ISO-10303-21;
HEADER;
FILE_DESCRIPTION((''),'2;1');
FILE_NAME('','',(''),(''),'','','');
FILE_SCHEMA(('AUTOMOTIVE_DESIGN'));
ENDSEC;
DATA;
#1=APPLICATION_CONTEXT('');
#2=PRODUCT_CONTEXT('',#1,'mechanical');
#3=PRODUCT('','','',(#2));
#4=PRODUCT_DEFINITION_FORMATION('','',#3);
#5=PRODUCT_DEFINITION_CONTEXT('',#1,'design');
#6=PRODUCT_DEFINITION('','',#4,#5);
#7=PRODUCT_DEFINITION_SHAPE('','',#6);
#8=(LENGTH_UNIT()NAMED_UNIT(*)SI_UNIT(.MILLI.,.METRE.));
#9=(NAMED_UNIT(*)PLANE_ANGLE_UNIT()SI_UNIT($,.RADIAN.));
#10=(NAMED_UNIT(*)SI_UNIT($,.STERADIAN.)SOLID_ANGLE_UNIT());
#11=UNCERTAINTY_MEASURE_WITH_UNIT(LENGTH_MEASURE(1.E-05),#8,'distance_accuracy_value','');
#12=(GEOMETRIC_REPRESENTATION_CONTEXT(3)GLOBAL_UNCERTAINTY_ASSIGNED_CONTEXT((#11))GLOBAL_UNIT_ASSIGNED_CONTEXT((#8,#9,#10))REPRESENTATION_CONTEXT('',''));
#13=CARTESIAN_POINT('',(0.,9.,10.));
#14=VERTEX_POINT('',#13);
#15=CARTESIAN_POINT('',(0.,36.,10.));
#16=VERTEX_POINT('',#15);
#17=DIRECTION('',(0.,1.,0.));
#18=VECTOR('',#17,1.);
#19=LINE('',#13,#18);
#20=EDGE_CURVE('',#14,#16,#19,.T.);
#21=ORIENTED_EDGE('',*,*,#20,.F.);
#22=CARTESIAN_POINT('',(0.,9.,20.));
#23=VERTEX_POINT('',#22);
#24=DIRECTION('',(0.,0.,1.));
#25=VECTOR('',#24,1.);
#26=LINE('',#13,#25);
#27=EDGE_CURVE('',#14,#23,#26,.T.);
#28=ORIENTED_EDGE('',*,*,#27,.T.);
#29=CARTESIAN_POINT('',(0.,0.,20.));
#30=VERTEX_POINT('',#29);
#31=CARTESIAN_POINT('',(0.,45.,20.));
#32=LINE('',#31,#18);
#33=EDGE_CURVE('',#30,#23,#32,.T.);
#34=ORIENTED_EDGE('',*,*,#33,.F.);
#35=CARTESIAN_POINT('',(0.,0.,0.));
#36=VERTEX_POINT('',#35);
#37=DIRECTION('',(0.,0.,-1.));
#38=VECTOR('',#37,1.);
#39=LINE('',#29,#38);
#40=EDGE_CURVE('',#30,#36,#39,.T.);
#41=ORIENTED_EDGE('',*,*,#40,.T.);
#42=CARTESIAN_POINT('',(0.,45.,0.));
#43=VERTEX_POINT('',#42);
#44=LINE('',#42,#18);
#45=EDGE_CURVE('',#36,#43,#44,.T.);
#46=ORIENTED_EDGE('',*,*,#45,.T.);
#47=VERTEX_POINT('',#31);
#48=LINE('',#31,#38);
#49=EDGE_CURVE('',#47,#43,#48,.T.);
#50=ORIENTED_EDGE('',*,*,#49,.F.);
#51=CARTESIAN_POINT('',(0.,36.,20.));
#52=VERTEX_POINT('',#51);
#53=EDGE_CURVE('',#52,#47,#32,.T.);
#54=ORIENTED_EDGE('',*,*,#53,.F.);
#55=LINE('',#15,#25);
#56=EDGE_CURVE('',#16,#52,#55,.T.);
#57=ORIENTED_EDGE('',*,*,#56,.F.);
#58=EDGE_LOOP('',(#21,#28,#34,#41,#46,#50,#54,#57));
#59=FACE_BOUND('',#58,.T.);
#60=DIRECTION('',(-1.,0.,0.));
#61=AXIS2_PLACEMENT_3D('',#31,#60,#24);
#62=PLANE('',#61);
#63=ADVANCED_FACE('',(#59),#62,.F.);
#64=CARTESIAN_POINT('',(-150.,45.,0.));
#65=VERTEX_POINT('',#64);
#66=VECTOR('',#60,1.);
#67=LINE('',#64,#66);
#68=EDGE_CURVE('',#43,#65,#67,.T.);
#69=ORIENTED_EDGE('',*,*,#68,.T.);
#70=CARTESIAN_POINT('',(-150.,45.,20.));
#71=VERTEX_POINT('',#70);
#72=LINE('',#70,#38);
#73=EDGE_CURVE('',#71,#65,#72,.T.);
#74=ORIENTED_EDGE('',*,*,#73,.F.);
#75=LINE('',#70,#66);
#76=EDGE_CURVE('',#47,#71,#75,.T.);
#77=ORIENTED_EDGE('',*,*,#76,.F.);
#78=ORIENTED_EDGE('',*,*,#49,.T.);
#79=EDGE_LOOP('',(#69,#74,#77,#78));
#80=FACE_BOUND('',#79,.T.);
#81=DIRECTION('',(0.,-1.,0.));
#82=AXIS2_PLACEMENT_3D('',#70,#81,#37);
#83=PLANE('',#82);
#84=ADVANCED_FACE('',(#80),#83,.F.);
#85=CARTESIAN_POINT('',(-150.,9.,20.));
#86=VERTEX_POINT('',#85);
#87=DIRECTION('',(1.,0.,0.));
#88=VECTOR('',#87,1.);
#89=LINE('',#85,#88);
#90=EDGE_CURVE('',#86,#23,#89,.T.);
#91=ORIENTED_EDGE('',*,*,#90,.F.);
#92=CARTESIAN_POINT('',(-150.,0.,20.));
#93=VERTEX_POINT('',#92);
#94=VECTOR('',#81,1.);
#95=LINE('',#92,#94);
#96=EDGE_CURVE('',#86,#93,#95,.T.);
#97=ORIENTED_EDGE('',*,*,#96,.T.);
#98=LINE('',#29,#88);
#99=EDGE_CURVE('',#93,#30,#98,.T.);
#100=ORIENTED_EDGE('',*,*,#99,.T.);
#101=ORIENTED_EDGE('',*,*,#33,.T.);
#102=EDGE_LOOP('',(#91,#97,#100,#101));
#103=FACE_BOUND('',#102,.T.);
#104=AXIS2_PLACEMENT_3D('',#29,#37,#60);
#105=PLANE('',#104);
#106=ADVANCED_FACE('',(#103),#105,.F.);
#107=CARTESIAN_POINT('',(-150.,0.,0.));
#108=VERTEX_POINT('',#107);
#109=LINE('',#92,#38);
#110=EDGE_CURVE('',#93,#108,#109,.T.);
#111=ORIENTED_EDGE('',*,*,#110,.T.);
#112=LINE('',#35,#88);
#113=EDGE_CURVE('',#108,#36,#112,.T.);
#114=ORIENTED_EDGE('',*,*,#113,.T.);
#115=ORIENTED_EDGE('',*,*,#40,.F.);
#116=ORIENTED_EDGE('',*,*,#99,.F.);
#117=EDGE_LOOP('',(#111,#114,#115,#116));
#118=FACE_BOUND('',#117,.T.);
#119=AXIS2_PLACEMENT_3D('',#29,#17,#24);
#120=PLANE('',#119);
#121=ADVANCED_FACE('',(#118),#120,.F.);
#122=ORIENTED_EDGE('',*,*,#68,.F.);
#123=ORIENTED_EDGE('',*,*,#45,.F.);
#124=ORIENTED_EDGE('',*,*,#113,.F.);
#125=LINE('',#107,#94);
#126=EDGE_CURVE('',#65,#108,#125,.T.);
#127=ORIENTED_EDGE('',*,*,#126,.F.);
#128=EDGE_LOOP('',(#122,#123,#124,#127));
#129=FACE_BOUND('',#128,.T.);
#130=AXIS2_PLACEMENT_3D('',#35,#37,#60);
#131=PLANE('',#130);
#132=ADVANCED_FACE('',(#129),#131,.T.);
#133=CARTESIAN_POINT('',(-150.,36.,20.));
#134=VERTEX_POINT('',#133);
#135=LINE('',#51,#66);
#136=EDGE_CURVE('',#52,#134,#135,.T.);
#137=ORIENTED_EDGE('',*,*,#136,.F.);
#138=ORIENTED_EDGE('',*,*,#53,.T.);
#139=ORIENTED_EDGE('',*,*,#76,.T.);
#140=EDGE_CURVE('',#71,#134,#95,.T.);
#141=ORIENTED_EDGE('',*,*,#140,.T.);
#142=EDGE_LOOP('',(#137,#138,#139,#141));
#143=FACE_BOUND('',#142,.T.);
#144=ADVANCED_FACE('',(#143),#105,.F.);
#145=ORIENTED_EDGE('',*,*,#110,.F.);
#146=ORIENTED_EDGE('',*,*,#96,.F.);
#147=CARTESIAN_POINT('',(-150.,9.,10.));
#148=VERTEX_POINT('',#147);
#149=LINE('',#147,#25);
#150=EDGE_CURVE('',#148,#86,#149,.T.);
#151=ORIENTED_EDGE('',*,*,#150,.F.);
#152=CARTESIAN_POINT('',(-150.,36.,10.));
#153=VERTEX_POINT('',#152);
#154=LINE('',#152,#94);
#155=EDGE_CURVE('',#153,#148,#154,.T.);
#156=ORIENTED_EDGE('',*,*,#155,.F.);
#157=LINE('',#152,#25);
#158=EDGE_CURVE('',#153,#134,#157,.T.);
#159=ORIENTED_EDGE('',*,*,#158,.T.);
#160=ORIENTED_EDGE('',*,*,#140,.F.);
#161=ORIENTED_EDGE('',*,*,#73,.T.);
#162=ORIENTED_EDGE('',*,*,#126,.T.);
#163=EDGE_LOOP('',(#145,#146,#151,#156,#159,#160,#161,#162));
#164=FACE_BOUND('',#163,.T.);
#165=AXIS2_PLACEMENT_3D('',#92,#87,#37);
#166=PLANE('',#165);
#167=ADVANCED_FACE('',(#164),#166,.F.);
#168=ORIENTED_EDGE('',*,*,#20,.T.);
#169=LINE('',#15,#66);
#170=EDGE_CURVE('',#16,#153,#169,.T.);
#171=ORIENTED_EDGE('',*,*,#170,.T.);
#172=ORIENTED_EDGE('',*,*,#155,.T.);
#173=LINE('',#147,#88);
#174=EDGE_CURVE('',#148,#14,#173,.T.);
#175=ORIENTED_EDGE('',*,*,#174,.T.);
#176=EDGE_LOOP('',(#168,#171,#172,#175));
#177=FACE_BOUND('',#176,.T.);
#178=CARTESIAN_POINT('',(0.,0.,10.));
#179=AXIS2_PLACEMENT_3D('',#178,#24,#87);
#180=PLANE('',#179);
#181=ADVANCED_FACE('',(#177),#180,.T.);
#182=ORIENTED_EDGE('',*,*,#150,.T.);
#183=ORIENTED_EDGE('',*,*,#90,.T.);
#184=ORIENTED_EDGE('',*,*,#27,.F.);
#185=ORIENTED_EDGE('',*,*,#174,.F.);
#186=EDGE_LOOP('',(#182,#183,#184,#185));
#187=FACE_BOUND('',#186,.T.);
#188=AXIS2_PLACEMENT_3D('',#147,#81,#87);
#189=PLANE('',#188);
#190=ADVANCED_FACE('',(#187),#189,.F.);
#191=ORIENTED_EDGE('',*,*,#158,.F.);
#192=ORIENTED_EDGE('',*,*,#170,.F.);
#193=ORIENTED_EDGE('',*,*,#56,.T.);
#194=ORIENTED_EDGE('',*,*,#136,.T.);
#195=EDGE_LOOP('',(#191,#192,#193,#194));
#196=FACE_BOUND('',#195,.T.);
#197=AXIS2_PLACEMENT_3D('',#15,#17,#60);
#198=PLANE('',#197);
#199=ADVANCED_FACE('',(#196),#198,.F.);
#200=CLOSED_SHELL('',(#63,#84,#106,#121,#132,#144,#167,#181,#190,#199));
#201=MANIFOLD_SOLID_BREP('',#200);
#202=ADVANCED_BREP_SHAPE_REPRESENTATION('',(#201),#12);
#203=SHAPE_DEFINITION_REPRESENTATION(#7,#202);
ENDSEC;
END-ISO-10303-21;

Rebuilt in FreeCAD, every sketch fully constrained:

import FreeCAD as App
import Part
import Sketcher

doc = App.newDocument("Part")
body = doc.addObject("PartDesign::Body", "Body")

# Sketch on XY plane
sketch1 = body.newObject("Sketcher::SketchObject", "Sketch")
sketch1.AttachmentSupport = (doc.getObject("XY_Plane"), [""])
sketch1.MapMode = "FlatFace"
sketch1.addGeometry([
    Part.LineSegment(App.Vector(-150, 45, 0), App.Vector(-150, 0, 0)),
    Part.LineSegment(App.Vector(-150, 0, 0), App.Vector(0, 0, 0)),
    Part.LineSegment(App.Vector(0, 0, 0), App.Vector(0, 45, 0)),
    Part.LineSegment(App.Vector(0, 45, 0), App.Vector(-150, 45, 0)),
], False)
sketch1.addConstraint([
    Sketcher.Constraint("Coincident", 0, 2, 1, 1),
    Sketcher.Constraint("Coincident", 1, 2, 2, 1),
    Sketcher.Constraint("Coincident", 2, 2, 3, 1),
    Sketcher.Constraint("Coincident", 3, 2, 0, 1),
    Sketcher.Constraint("Vertical", 0),
    Sketcher.Constraint("Horizontal", 1),
    Sketcher.Constraint("Vertical", 2),
    Sketcher.Constraint("Horizontal", 3),
    Sketcher.Constraint("Coincident", 1, 2, -1, 1),
    Sketcher.Constraint("DistanceX", 1, 1, 1, 2, 150.0),
    Sketcher.Constraint("DistanceY", 0, 2, 0, 1, 45.0),
])
pad1 = body.newObject("PartDesign::Pad", "Pad")
pad1.Profile = sketch1
pad1.Length = 20

# Sketch on XY plane
sketch2 = body.newObject("Sketcher::SketchObject", "Sketch001")
sketch2.AttachmentSupport = (doc.getObject("XY_Plane"), [""])
sketch2.MapMode = "FlatFace"
sketch2.AttachmentOffset = App.Placement(App.Vector(0, 0, 20), App.Rotation())
sketch2.addGeometry([
    Part.LineSegment(App.Vector(-150, 36, 0), App.Vector(-150, 9, 0)),
    Part.LineSegment(App.Vector(-150, 9, 0), App.Vector(0, 9, 0)),
    Part.LineSegment(App.Vector(0, 9, 0), App.Vector(0, 36, 0)),
    Part.LineSegment(App.Vector(0, 36, 0), App.Vector(-150, 36, 0)),
], False)
sketch2.addConstraint([
    Sketcher.Constraint("Coincident", 0, 2, 1, 1),
    Sketcher.Constraint("Coincident", 1, 2, 2, 1),
    Sketcher.Constraint("Coincident", 2, 2, 3, 1),
    Sketcher.Constraint("Coincident", 3, 2, 0, 1),
    Sketcher.Constraint("Vertical", 0),
    Sketcher.Constraint("Horizontal", 1),
    Sketcher.Constraint("Vertical", 2),
    Sketcher.Constraint("Horizontal", 3),
    Sketcher.Constraint("PointOnObject", 1, 2, -2),
    Sketcher.Constraint("DistanceX", 1, 1, 1, 2, 150.0),
    Sketcher.Constraint("DistanceY", 0, 2, 0, 1, 27.0),
    Sketcher.Constraint("DistanceY", -1, 1, 0, 2, 9.0),
])
pocket1 = body.newObject("PartDesign::Pocket", "Pocket")
pocket1.Profile = sketch2
pocket1.Length = 10

doc.recompute()
